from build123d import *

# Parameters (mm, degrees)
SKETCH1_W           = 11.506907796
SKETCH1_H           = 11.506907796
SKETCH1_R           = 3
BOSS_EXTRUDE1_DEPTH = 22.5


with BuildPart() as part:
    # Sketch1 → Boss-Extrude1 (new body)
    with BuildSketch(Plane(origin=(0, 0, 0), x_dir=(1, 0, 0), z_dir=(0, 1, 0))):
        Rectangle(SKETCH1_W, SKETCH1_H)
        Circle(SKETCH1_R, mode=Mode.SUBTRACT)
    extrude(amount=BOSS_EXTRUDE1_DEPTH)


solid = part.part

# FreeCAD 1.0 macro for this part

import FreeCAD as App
import Part
import Sketcher

V = App.Vector
Q = App.Units.Quantity


def add_polygon(sketch, points):
    """Adds a closed chain of lines whose ends are joined by coincident constraints."""
    first, n = sketch.GeometryCount, len(points)
    for a, b in zip(points, points[1:] + points[:1]):
        sketch.addGeometry(Part.LineSegment(App.Vector(*a, 0), App.Vector(*b, 0)), False)
    for i in range(n):
        sketch.addConstraint(Sketcher.Constraint("Coincident", first + i, 2, first + (i + 1) % n, 1))

doc = App.newDocument("Part")
body = doc.addObject("PartDesign::Body", "Body")

sketch1 = body.newObject("Sketcher::SketchObject", "Sketch")
sketch1.AttachmentSupport = (doc.getObject("XZ_Plane"), [""])
sketch1.MapMode = "FlatFace"
add_polygon(sketch1, [(-5.8, -5.8), (-5.8, 5.8), (5.8, 5.8), (5.8, -5.8)])
sketch1.addGeometry(Part.Circle(V(0, 0, 0), V(0, 0, 1), 3), False)
sketch1.addConstraint(Sketcher.Constraint("Vertical", 0))
sketch1.addConstraint(Sketcher.Constraint("Horizontal", 1))
sketch1.addConstraint(Sketcher.Constraint("Vertical", 2))
sketch1.addConstraint(Sketcher.Constraint("Horizontal", 3))
sketch1.addConstraint(Sketcher.Constraint("Coincident", 4, 3, -1, 1))
sketch1.addConstraint(Sketcher.Constraint("Symmetric", 0, 2, 2, 2, -1, 1))
sketch1.addConstraint(Sketcher.Constraint("Equal", 3, 0))
sketch1.addConstraint(Sketcher.Constraint("Diameter", 4, Q("6 mm")))
sketch1.addConstraint(Sketcher.Constraint("DistanceX", 1, 1, 1, 2, Q("11.506908 mm")))
pad1 = body.newObject("PartDesign::Pad", "Pad")
pad1.Profile = sketch1
pad1.Length = 22.5
pad1.Reversed = True

doc.recompute()
